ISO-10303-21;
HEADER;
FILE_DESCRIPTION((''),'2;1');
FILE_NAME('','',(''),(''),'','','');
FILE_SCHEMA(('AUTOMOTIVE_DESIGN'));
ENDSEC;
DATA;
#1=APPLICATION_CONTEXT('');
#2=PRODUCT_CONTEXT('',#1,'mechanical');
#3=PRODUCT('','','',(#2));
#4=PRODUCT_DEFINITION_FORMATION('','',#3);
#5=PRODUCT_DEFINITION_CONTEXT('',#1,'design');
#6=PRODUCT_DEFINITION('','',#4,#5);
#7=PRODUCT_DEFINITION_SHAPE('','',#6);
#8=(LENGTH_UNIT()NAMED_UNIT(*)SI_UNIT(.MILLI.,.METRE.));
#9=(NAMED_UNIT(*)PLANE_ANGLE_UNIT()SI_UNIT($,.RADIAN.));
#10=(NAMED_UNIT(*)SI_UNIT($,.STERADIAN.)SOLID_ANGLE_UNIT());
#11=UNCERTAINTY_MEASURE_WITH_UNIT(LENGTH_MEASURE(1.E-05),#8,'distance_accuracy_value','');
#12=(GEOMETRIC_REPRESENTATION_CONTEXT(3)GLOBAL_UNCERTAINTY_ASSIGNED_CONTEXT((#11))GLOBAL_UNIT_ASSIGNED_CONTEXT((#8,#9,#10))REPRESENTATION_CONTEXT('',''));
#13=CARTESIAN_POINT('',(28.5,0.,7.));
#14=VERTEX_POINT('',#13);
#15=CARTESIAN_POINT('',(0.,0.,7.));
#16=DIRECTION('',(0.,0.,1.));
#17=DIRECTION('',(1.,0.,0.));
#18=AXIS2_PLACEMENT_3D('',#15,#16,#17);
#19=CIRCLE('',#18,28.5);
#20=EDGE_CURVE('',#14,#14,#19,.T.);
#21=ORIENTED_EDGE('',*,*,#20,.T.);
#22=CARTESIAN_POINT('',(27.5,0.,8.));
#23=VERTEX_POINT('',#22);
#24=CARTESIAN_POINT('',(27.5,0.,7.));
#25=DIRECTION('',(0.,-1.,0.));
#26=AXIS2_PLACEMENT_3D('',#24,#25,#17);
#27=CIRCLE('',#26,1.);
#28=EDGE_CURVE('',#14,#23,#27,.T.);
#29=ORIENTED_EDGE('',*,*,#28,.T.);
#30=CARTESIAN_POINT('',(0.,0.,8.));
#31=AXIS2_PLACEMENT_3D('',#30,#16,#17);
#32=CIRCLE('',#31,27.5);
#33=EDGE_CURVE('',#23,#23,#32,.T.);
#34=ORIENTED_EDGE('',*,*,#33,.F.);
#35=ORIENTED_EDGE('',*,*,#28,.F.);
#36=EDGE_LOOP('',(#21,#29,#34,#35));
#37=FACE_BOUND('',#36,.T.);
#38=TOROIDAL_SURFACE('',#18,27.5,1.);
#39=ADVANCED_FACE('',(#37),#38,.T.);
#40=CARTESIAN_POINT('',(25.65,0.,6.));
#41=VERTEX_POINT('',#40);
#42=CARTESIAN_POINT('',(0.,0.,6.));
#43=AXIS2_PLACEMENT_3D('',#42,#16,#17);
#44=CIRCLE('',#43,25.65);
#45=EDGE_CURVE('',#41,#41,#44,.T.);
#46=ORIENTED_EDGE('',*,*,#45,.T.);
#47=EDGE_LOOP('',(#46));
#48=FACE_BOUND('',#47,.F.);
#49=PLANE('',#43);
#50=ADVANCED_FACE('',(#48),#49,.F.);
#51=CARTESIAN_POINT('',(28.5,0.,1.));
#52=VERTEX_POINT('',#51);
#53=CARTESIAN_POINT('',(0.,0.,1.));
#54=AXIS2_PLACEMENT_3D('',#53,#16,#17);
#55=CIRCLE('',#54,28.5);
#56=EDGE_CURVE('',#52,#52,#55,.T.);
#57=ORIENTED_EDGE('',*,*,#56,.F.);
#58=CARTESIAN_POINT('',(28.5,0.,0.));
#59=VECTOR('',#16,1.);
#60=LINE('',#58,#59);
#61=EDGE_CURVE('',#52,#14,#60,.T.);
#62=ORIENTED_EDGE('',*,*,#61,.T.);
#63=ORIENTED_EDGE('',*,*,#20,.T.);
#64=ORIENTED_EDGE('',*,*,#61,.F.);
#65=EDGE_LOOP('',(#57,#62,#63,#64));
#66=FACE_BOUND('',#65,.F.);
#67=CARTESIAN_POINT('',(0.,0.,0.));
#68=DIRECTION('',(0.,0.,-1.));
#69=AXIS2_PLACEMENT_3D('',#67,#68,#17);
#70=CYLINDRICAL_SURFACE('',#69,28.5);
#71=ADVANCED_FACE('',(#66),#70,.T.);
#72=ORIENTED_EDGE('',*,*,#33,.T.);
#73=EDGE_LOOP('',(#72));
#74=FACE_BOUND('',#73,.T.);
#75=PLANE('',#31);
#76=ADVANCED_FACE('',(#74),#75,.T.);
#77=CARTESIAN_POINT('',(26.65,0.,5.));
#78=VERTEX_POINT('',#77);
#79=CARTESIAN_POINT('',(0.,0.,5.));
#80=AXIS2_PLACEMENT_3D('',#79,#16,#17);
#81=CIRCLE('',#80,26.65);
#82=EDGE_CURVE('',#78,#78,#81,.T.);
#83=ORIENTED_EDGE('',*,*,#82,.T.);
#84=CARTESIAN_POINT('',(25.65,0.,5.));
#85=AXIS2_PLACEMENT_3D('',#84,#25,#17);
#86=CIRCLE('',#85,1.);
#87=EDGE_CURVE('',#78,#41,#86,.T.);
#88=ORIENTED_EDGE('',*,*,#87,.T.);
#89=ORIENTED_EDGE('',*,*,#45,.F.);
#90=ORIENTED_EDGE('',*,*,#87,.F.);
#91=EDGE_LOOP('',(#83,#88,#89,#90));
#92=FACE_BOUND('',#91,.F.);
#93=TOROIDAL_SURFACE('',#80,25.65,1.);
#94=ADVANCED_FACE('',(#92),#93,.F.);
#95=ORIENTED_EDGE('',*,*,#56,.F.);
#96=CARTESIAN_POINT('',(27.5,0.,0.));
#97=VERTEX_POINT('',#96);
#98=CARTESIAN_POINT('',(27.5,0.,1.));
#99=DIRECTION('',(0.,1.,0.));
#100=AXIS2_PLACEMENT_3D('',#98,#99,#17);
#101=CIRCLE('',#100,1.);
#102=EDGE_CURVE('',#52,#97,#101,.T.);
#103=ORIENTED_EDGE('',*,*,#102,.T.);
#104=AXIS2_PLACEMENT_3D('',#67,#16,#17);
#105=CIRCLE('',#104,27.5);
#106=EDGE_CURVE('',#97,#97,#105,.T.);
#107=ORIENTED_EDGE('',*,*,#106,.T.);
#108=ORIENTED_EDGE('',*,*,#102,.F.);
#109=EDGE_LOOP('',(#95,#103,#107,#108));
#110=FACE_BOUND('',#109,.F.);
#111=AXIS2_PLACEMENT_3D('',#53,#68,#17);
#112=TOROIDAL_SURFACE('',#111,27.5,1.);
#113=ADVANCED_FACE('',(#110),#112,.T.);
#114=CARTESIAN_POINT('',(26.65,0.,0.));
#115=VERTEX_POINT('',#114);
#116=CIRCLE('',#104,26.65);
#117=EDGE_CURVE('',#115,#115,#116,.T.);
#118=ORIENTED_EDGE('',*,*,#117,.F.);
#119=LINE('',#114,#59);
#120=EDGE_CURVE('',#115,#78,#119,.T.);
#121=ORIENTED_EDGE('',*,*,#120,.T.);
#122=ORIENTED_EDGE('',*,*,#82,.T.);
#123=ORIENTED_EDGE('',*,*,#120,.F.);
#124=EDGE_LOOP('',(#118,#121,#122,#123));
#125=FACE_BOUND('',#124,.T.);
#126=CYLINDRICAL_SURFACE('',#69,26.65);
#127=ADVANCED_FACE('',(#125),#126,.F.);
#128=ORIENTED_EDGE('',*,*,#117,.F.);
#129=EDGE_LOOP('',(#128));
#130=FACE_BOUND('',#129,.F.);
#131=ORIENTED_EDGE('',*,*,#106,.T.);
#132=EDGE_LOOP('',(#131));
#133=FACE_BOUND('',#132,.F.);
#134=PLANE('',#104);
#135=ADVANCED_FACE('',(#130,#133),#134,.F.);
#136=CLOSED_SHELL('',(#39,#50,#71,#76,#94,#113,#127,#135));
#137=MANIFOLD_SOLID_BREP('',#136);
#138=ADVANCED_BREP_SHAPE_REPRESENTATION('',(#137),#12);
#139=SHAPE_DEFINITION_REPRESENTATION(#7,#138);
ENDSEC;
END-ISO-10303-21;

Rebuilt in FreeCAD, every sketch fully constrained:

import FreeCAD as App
import Part
import Sketcher

V = App.Vector
Q = App.Units.Quantity


def edges_at(feature, points):
    """Names of the edges that pass closest to the given points."""
    edges = feature.Shape.Edges
    near = lambda p: min(range(len(edges)), key=lambda i: edges[i].distToShape(Part.Vertex(*p))[0])
    return sorted({f"Edge{near(p) + 1}" for p in points})

doc = App.newDocument("Part")
body = doc.addObject("PartDesign::Body", "Body")

# Sketch on XY plane
sketch1 = doc.addObject("Sketcher::SketchObject", "Sketch")
body.addObject(sketch1)
sketch1.AttachmentSupport = (doc.XY_Plane, [""])
sketch1.MapMode = "FlatFace"
sketch1.addGeometry(Part.Circle(V(0, 0, 0), V(0, 0, 1), 28.5), False)
sketch1.addConstraint(Sketcher.Constraint("Coincident", 0, 3, -1, 1))
sketch1.addConstraint(Sketcher.Constraint("Diameter", 0, Q("57 mm")))
pad1 = doc.addObject("PartDesign::Pad", "Pad")
body.addObject(pad1)
pad1.Profile = sketch1
pad1.Length = 8

# Sketch on XY plane
sketch2 = doc.addObject("Sketcher::SketchObject", "Sketch001")
body.addObject(sketch2)
sketch2.AttachmentSupport = (doc.XY_Plane, [""])
sketch2.MapMode = "FlatFace"
sketch2.addGeometry(Part.Circle(V(0, 0, 0), V(0, 0, 1), 26.65), False)
sketch2.addConstraint(Sketcher.Constraint("Coincident", 0, 3, -1, 1))
sketch2.addConstraint(Sketcher.Constraint("Diameter", 0, Q("53.3 mm")))
pocket1 = doc.addObject("PartDesign::Pocket", "Pocket")
body.addObject(pocket1)
pocket1.Profile = sketch2
pocket1.Length = 6
pocket1.Reversed = True
doc.recompute()

fillet = doc.addObject("PartDesign::Fillet", "Fillet")
body.addObject(fillet)
fillet.Base = (pocket1, edges_at(pocket1, [(-28.5, 0, 8), (-28.5, 0, 0), (-26.65, 0, 6)]))
fillet.Radius = 1

doc.recompute()
